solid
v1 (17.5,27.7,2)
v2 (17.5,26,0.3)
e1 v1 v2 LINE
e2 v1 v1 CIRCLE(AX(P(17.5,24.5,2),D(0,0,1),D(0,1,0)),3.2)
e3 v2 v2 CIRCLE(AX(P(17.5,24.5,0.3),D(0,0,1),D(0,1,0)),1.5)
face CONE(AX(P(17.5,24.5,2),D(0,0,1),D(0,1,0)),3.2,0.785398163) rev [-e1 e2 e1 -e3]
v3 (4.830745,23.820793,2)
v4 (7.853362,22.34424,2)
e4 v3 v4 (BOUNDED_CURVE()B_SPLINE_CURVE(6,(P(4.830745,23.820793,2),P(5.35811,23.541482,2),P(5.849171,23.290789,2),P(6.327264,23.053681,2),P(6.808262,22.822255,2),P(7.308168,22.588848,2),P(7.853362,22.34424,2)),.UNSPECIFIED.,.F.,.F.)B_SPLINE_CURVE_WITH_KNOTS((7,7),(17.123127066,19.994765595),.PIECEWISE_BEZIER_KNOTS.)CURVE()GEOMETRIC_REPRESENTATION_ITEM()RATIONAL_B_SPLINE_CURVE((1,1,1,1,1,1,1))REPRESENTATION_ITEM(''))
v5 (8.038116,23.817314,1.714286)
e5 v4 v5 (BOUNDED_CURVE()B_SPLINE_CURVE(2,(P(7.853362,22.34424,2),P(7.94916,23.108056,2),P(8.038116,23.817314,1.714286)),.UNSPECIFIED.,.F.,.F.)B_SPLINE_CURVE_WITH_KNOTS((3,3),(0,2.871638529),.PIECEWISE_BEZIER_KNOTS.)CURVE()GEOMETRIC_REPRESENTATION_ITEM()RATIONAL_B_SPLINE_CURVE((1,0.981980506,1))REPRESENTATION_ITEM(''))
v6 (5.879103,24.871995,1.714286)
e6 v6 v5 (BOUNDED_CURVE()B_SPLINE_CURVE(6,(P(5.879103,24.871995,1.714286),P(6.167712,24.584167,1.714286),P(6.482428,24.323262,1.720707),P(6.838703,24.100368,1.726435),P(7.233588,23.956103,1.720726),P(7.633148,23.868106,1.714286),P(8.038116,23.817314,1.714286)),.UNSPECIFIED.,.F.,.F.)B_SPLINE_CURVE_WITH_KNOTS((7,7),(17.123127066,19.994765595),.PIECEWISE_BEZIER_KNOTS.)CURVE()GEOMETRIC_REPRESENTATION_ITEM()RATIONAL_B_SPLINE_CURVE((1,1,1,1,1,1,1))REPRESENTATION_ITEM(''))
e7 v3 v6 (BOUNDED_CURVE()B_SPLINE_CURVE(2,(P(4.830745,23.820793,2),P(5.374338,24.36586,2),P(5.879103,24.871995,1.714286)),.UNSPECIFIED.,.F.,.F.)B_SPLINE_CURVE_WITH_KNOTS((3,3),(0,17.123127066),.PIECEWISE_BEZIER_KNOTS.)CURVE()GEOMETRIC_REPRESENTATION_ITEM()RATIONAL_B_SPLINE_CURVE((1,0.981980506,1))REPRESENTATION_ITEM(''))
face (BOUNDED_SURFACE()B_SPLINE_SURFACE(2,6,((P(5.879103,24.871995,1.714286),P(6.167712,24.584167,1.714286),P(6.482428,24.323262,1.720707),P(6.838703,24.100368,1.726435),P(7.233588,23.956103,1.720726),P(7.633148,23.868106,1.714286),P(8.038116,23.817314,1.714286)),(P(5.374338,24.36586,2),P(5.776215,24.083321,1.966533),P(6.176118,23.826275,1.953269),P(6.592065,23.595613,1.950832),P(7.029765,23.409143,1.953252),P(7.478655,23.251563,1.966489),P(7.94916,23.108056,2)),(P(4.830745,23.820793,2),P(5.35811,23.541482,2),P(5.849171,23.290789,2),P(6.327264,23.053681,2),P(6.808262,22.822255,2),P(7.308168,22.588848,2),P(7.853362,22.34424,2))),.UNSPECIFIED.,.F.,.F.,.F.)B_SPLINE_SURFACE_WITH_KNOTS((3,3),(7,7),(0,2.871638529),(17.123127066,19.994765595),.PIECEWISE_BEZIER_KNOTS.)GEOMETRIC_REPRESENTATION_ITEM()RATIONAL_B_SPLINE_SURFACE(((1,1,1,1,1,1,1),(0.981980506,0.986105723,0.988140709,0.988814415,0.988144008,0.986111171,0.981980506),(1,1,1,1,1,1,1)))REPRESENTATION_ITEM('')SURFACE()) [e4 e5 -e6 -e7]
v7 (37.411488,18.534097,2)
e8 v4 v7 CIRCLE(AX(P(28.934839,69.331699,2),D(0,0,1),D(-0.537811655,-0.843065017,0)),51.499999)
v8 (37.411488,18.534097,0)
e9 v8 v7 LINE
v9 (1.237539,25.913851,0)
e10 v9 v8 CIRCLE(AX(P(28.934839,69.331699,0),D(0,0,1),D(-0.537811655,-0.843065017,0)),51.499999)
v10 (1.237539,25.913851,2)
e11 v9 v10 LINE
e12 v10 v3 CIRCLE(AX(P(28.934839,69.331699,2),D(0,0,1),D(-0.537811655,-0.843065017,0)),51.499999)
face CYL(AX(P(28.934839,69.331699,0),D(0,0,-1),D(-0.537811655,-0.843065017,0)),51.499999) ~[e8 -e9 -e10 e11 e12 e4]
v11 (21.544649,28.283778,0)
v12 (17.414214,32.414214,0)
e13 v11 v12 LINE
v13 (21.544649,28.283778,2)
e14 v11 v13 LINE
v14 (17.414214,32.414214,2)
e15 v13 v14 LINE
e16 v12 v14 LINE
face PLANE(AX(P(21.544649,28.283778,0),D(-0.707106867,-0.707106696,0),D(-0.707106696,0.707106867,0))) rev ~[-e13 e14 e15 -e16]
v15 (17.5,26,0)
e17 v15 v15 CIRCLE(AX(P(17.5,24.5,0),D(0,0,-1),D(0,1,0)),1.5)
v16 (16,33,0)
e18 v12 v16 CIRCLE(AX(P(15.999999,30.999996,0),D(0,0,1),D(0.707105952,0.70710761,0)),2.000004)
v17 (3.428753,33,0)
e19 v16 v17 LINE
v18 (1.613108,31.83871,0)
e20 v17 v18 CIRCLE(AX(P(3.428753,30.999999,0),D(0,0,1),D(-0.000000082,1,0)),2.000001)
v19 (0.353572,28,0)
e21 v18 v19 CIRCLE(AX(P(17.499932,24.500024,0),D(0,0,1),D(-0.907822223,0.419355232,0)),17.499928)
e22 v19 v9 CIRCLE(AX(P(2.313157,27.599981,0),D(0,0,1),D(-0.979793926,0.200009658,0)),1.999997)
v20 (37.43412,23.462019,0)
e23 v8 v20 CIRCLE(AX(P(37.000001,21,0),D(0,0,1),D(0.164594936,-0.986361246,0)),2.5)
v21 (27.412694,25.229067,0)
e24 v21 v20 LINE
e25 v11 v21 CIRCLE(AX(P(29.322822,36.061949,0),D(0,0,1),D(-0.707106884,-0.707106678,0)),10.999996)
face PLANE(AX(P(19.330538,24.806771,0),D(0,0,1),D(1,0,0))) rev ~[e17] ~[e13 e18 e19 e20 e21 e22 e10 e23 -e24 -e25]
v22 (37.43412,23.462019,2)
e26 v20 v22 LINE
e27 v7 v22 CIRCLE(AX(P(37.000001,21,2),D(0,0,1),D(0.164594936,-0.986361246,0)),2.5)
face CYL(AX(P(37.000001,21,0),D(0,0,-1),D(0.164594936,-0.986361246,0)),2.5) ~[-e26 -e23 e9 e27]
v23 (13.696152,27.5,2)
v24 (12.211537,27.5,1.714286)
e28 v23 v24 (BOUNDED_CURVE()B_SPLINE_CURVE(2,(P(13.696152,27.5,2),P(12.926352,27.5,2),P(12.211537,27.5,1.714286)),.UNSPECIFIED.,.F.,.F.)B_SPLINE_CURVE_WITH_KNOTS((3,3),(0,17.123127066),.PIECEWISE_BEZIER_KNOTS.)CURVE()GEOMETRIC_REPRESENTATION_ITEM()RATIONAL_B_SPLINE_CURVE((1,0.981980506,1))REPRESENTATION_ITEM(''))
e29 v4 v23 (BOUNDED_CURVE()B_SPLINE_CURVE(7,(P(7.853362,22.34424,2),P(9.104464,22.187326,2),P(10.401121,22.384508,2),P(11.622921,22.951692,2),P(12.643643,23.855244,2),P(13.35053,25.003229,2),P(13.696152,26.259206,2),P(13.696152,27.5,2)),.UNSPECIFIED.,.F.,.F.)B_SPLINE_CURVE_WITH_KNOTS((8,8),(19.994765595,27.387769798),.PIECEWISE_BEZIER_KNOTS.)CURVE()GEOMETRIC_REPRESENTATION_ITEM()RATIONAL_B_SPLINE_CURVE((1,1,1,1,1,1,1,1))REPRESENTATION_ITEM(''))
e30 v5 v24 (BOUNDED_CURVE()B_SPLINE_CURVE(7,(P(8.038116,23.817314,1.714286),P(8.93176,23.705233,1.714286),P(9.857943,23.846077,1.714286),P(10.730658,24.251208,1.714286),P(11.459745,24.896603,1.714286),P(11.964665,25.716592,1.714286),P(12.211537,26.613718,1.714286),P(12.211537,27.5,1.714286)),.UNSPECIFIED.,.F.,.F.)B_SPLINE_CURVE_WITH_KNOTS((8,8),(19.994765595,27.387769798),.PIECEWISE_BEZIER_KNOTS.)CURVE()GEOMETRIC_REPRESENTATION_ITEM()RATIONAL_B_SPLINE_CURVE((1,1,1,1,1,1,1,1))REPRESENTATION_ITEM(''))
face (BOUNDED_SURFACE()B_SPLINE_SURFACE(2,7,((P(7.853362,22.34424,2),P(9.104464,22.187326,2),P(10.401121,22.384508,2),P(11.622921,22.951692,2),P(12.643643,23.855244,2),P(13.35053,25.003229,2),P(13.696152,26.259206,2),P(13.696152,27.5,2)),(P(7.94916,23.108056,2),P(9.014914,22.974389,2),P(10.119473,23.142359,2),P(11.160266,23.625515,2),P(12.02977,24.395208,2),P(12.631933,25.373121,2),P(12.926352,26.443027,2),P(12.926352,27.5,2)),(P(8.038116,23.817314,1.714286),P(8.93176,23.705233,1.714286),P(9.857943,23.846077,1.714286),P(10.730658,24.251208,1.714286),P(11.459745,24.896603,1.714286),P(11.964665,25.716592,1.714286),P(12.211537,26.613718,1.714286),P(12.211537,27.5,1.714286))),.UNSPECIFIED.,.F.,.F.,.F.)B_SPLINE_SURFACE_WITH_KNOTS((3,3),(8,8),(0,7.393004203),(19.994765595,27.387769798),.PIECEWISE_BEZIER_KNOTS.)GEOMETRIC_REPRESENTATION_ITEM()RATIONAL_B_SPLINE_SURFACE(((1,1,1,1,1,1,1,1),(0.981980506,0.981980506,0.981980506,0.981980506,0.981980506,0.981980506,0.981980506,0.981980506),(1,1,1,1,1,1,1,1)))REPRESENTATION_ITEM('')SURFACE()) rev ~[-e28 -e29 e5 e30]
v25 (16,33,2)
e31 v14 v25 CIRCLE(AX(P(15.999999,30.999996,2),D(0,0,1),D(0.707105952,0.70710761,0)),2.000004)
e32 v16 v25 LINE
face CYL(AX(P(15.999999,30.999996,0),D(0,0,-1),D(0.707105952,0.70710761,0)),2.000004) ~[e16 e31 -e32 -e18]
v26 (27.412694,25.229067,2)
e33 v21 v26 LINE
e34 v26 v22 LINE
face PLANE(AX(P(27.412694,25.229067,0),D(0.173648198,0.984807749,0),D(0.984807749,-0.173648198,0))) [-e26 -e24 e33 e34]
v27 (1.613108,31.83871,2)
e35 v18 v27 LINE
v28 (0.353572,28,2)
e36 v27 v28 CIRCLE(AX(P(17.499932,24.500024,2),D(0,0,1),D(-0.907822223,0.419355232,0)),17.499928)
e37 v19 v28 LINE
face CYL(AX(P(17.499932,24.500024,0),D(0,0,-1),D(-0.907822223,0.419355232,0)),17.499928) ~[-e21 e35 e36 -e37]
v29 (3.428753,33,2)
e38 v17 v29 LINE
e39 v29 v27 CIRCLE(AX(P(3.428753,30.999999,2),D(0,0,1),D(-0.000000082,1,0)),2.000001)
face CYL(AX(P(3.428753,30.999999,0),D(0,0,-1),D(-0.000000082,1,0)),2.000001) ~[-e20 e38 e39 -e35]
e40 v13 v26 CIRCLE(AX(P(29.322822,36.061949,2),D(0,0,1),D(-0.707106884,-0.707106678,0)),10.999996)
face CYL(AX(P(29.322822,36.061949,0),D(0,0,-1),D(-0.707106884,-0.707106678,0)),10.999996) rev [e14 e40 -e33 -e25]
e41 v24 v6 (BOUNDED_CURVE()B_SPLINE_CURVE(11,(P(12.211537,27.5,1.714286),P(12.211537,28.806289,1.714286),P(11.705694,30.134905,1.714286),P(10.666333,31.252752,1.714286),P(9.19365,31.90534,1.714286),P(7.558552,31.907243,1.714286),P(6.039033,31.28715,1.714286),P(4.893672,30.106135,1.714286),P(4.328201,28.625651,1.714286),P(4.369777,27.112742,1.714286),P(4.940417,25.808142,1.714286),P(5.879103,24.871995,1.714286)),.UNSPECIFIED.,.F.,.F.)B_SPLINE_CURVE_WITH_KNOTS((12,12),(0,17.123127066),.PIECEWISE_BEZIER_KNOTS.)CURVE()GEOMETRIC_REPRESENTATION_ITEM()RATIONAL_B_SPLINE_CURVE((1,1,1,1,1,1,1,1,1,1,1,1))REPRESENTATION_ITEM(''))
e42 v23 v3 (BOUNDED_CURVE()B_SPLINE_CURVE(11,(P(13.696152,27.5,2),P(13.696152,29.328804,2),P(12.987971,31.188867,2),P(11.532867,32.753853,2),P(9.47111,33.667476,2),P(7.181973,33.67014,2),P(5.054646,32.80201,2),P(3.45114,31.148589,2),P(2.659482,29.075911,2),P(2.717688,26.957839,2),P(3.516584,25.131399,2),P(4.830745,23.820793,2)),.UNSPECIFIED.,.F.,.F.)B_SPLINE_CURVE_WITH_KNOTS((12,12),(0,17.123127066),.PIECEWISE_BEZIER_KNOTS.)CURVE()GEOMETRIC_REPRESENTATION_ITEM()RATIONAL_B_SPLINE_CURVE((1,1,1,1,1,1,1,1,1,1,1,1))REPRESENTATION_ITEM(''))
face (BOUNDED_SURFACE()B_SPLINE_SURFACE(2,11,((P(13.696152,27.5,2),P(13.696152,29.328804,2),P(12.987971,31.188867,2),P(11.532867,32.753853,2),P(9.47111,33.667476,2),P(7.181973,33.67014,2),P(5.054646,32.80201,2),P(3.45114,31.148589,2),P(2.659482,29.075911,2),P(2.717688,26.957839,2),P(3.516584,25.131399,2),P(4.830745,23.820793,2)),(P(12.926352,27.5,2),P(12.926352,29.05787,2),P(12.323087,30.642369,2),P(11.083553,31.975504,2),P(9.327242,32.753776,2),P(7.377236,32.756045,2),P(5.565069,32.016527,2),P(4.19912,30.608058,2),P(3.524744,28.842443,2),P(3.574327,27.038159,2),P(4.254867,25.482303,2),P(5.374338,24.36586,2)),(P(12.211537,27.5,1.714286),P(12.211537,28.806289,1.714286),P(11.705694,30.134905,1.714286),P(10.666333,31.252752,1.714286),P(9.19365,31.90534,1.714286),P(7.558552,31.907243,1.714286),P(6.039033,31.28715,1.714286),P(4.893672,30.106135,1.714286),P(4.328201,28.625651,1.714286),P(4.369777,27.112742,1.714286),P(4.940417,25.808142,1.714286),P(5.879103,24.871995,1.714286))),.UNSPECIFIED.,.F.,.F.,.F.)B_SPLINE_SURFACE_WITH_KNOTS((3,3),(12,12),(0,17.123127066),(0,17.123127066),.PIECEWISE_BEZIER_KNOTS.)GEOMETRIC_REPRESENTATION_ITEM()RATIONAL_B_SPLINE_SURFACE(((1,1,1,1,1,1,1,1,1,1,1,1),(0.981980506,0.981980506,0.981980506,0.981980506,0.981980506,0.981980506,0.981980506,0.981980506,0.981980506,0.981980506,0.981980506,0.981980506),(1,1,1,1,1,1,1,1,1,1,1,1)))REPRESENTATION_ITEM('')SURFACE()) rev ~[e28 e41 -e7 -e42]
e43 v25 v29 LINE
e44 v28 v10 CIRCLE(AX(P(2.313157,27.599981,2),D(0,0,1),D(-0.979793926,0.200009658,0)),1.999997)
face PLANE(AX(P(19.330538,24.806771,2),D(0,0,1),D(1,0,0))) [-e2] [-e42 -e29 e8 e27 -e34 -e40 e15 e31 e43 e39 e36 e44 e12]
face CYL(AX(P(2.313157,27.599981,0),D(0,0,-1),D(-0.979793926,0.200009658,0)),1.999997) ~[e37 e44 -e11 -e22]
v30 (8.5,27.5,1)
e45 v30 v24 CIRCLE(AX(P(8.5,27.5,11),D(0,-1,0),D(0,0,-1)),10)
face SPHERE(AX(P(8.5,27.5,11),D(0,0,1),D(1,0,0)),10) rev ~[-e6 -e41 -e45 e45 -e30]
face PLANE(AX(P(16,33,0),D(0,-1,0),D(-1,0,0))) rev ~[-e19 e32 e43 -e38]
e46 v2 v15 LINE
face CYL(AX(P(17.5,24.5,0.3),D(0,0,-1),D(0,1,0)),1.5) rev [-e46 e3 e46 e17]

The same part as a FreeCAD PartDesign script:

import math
import FreeCAD as App
import Part
import Sketcher
from FreeCAD import Vector
Q = App.Units.Quantity


def edges_at(feature, points):
    """Names of the edges that pass closest to the given points."""
    edges = feature.Shape.Edges
    near = lambda p: min(range(len(edges)), key=lambda i: edges[i].distToShape(Part.Vertex(*p))[0])
    return sorted({f"Edge{near(p) + 1}" for p in points})

doc = App.newDocument("Part")
params = doc.addObject("Spreadsheet::Sheet", "Params")
for row, (alias, value) in enumerate([
    ("sketch1_radius", "10 mm"),
    ("revolution_angle", "360 deg"),
    ("sketch2_height", "10 mm"),
    ("sketch2_width", "3.2 mm"),
    ("sketch2_width2", "1.5 mm"),
    ("revolution2_angle", "360 deg"),
    ("sketch3_radius", "2.000001 mm"),
    ("sketch3_radius2", "51.499999 mm"),
    ("sketch3_radius3", "2.5 mm"),
    ("pad1_length", "2 mm"),
    ("fillet_radius", "4 mm"),
], start=1):
    params.set(f"A{row}", alias)
    params.set(f"B{row}", "=" + value)
    params.setAlias(f"B{row}", alias)

body = doc.addObject("PartDesign::Body", "Body")

# Sketch on XZ plane
sketch1 = body.newObject("Sketcher::SketchObject", "Sketch")
sketch1.AttachmentSupport = (doc.getObject("XZ_Plane"), [""])
sketch1.MapMode = "FlatFace"
sketch1.AttachmentOffset = App.Placement(Vector(0, 0, -27.5), App.Rotation())
sketch1.addGeometry(Part.ArcOfCircle(Part.Circle(Vector(8, 11, 0), Vector(0, 0, 1), 10), math.radians(-90), math.radians(90)), False)
sketch1.addGeometry(Part.LineSegment(Vector(8, 21, 0), Vector(8, 1, 0)), False)
sketch1.addGeometry(Part.LineSegment(Vector(8, 1, 0), Vector(8, 21, 0)), True)  # axis
sketch1.addConstraint(Sketcher.Constraint("Coincident", 0, 1, 1, 2))
sketch1.addConstraint(Sketcher.Constraint("Coincident", 1, 1, 0, 2))
sketch1.addConstraint(Sketcher.Constraint("Vertical", 1))
sketch1.addConstraint(Sketcher.Constraint("Vertical", 2))
sketch1.addConstraint(Sketcher.Constraint("Coincident", 2, 1, 0, 1))
sketch1.addConstraint(Sketcher.Constraint("Equal", 1, 2))
sketch1.addConstraint(Sketcher.Constraint("Radius", 0, 10.0))
sketch1.addConstraint(Sketcher.Constraint("DistanceY", -1, 1, 0, 3, 11.0))
sketch1.addConstraint(Sketcher.Constraint("DistanceX", -1, 1, 0, 3, 8.5))
sketch1.addConstraint(Sketcher.Constraint("DistanceX", -1, 1, 0, 1, 8.5))
sketch1.setExpression("Constraints[6]", "Params.sketch1_radius")
revolution = body.newObject("PartDesign::Revolution", "Revolution")
revolution.Profile = sketch1
revolution.ReferenceAxis = (sketch1, ["Axis0"])
revolution.setExpression("Angle", "Params.revolution_angle")
body2 = doc.addObject("PartDesign::Body", "Body001")

# Sketch on YZ plane
sketch2 = body2.newObject("Sketcher::SketchObject", "Sketch001")
sketch2.AttachmentSupport = (doc.getObject("YZ_Plane001"), [""])
sketch2.MapMode = "FlatFace"
sketch2.addGeometry(Part.LineSegment(Vector(1.5, -1.7, 0), Vector(3.2, 0, 0)), False)
sketch2.addGeometry(Part.LineSegment(Vector(3.2, 0, 0), Vector(0, 0, 0)), False)
sketch2.addGeometry(Part.LineSegment(Vector(0, 0, 0), Vector(0, -10, 0)), False)
sketch2.addGeometry(Part.LineSegment(Vector(0, -10, 0), Vector(1.5, -10, 0)), False)
sketch2.addGeometry(Part.LineSegment(Vector(1.5, -10, 0), Vector(1.5, -1.7, 0)), False)
sketch2.addConstraint(Sketcher.Constraint("Coincident", 0, 2, 1, 1))
sketch2.addConstraint(Sketcher.Constraint("Coincident", 1, 2, 2, 1))
sketch2.addConstraint(Sketcher.Constraint("Coincident", 2, 2, 3, 1))
sketch2.addConstraint(Sketcher.Constraint("Coincident", 3, 2, 4, 1))
sketch2.addConstraint(Sketcher.Constraint("Coincident", 4, 2, 0, 1))
sketch2.addConstraint(Sketcher.Constraint("Horizontal", 1))
sketch2.addConstraint(Sketcher.Constraint("Vertical", 2))
sketch2.addConstraint(Sketcher.Constraint("Horizontal", 3))
sketch2.addConstraint(Sketcher.Constraint("Vertical", 4))
sketch2.addConstraint(Sketcher.Constraint("Coincident", 1, 2, -1, 1))
sketch2.addConstraint(Sketcher.Constraint("DistanceY", 2, 2, 2, 1, 10.0))
sketch2.addConstraint(Sketcher.Constraint("Angle", 0, Q("45 deg")))
sketch2.addConstraint(Sketcher.Constraint("DistanceX", 1, 2, 1, 1, 3.2))
sketch2.addConstraint(Sketcher.Constraint("DistanceX", 3, 1, 3, 2, 1.5))
sketch2.setExpression("Constraints[10]", "Params.sketch2_height")
sketch2.setExpression("Constraints[12]", "Params.sketch2_width")
sketch2.setExpression("Constraints[13]", "Params.sketch2_width2")
revolution2 = body2.newObject("PartDesign::Revolution", "Revolution001")
revolution2.Profile = sketch2
revolution2.ReferenceAxis = (sketch2, ["V_Axis"])
revolution2.setExpression("Angle", "Params.revolution2_angle")
body3 = doc.addObject("PartDesign::Body", "Body002")
doc.recompute()

body2.Placement = App.Placement(Vector(17.5, 24.5, 2), App.Rotation(Vector(0, 0, 1), 0))
boolean = body3.newObject("PartDesign::Boolean", "Boolean")
boolean.Type = "Fuse"
boolean.addObjects([body2])
body4 = doc.addObject("PartDesign::Body", "Body003")

# Sketch on XY plane
sketch3 = body4.newObject("Sketcher::SketchObject", "Sketch002")
sketch3.AttachmentSupport = (doc.getObject("XY_Plane003"), [""])
sketch3.MapMode = "FlatFace"
sketch3.addGeometry(Part.ArcOfCircle(Part.Circle(Vector(28.9, 69.3, 0), Vector(0, 0, 1), 51.5), math.radians(-123), math.radians(-81)), False)
sketch3.addGeometry(Part.ArcOfCircle(Part.Circle(Vector(37, 21, 0), Vector(0, 0, 1), 2.5), math.radians(-81), math.radians(80)), False)
sketch3.addGeometry(Part.LineSegment(Vector(37.4, 23.5, 0), Vector(27.4, 25.2, 0)), False)
sketch3.addGeometry(Part.ArcOfCircle(Part.Circle(Vector(29.3, 36.1, 0), Vector(0, 0, 1), 11), math.radians(-135), math.radians(-100)), False)
sketch3.addGeometry(Part.LineSegment(Vector(21.5, 28.3, 0), Vector(17.4, 32.4, 0)), False)
sketch3.addGeometry(Part.ArcOfCircle(Part.Circle(Vector(16, 31, 0), Vector(0, 0, 1), 2), math.radians(45), math.radians(90)), False)
sketch3.addGeometry(Part.LineSegment(Vector(16, 33, 0), Vector(3.4, 33, 0)), False)
sketch3.addGeometry(Part.ArcOfCircle(Part.Circle(Vector(3.4, 31, 0), Vector(0, 0, 1), 2), math.radians(90), math.radians(155)), False)
sketch3.addGeometry(Part.ArcOfCircle(Part.Circle(Vector(17.5, 24.5, 0), Vector(0, 0, 1), 17.5), math.radians(155.21), math.radians(168.46)), False)
sketch3.addGeometry(Part.ArcOfCircle(Part.Circle(Vector(2.3, 27.6, 0), Vector(0, 0, 1), 2), math.radians(168), math.radians(237)), False)
sketch3.addConstraint(Sketcher.Constraint("Tangent", 0, 2, 1, 1))
sketch3.addConstraint(Sketcher.Constraint("Tangent", 1, 2, 2, 1))
sketch3.addConstraint(Sketcher.Constraint("Tangent", 2, 2, 3, 2))
sketch3.addConstraint(Sketcher.Constraint("Tangent", 3, 1, 4, 1))
sketch3.addConstraint(Sketcher.Constraint("Tangent", 4, 2, 5, 1))
sketch3.addConstraint(Sketcher.Constraint("Tangent", 5, 2, 6, 1))
sketch3.addConstraint(Sketcher.Constraint("Tangent", 6, 2, 7, 1))
sketch3.addConstraint(Sketcher.Constraint("Tangent", 7, 2, 8, 1))
sketch3.addConstraint(Sketcher.Constraint("Coincident", 8, 2, 9, 1))
sketch3.addConstraint(Sketcher.Constraint("Coincident", 9, 2, 0, 1))
sketch3.addConstraint(Sketcher.Constraint("Horizontal", 6))
sketch3.addConstraint(Sketcher.Constraint("Radius", 7, 2.000001))
sketch3.addConstraint(Sketcher.Constraint("Radius", 0, 51.499999))
sketch3.addConstraint(Sketcher.Constraint("Radius", 1, 2.5))
sketch3.addConstraint(Sketcher.Constraint("Angle", 2, Q("169.999999 deg")))
sketch3.addConstraint(Sketcher.Constraint("Angle", 4, Q("134.999993 deg")))
sketch3.addConstraint(Sketcher.Constraint("DistanceX", -1, 1, 1, 3, 37.000001))
sketch3.addConstraint(Sketcher.Constraint("DistanceY", -1, 1, 1, 3, 21.0))
sketch3.addConstraint(Sketcher.Constraint("DistanceX", -1, 1, 5, 3, 15.999999))
sketch3.addConstraint(Sketcher.Constraint("DistanceY", -1, 1, 7, 3, 30.999999))
sketch3.addConstraint(Sketcher.Constraint("DistanceY", -1, 1, 8, 2, 28.0))
sketch3.addConstraint(Sketcher.Constraint("Radius", 8, 17.499928))
sketch3.addConstraint(Sketcher.Constraint("Radius", 3, 10.999996))
sketch3.addConstraint(Sketcher.Constraint("Radius", 5, 2.000004))
sketch3.addConstraint(Sketcher.Constraint("Radius", 9, 1.999997))
sketch3.addConstraint(Sketcher.Constraint("DistanceY", -1, 1, 0, 3, 69.331699))
sketch3.addConstraint(Sketcher.Constraint("DistanceX", 6, 2, 6, 1, 12.571247))
sketch3.addConstraint(Sketcher.Constraint("DistanceX", -1, 1, 8, 3, 17.499932))
sketch3.addConstraint(Sketcher.Constraint("DistanceX", -1, 1, 9, 2, 1.237539))
sketch3.setExpression("Constraints[11]", "Params.sketch3_radius")
sketch3.setExpression("Constraints[12]", "Params.sketch3_radius2")
sketch3.setExpression("Constraints[13]", "Params.sketch3_radius3")
pad1 = body4.newObject("PartDesign::Pad", "Pad")
pad1.Profile = sketch3
pad1.setExpression("Length", "Params.pad1_length")
doc.recompute()

boolean2 = body4.newObject("PartDesign::Boolean", "Boolean001")
boolean2.Type = "Cut"
boolean2.addObjects([body3])
doc.recompute()

boolean3 = body4.newObject("PartDesign::Boolean", "Boolean002")
boolean3.Type = "Cut"
boolean3.addObjects([body])
doc.recompute()

fillet = body4.newObject("PartDesign::Fillet", "Fillet")
fillet.Base = (boolean3, edges_at(boolean3, [(4.141, 27.5, 2)]))
fillet.setExpression("Radius", "Params.fillet_radius")

doc.recompute()
